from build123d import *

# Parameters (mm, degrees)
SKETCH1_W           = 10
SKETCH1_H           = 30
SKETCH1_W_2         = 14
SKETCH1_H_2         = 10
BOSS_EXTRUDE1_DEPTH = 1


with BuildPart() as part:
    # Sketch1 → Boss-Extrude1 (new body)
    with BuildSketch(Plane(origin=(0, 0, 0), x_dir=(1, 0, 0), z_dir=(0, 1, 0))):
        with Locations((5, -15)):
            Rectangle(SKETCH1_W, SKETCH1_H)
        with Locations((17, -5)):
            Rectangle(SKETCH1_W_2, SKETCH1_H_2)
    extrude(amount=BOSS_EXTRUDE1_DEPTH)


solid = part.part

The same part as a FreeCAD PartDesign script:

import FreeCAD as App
import Part
import Sketcher
from FreeCAD import Vector


def add_polygon(sketch, points):
    """Adds a closed chain of lines whose ends are joined by coincident constraints."""
    first, n = sketch.GeometryCount, len(points)
    for a, b in zip(points, points[1:] + points[:1]):
        sketch.addGeometry(Part.LineSegment(App.Vector(*a, 0), App.Vector(*b, 0)), False)
    for i in range(n):
        sketch.addConstraint(Sketcher.Constraint("Coincident", first + i, 2, first + (i + 1) % n, 1))

doc = App.newDocument("Part")
params = doc.addObject("Spreadsheet::Sheet", "Params")
for row, (alias, value) in enumerate([
    ("sketch1_width", "10 mm"),
    ("sketch1_width2", "14 mm"),
    ("sketch1_height", "30 mm"),
    ("pad1_length", "1 mm"),
], start=1):
    params.set(f"A{row}", alias)
    params.set(f"B{row}", "=" + value)
    params.setAlias(f"B{row}", alias)

body = doc.addObject("PartDesign::Body", "Body")

# Sketch on XZ plane
sketch1 = body.newObject("Sketcher::SketchObject", "Sketch")
sketch1.AttachmentSupport = (doc.getObject("XZ_Plane"), [""])
sketch1.MapMode = "FlatFace"
add_polygon(sketch1, [(0, 0), (0, 30), (10, 30), (10, 10), (24, 10), (24, 0)])  # lines 0-5
sketch1.addConstraint([
    Sketcher.Constraint("Vertical", 0),
    Sketcher.Constraint("Horizontal", 1),
    Sketcher.Constraint("Vertical", 2),
    Sketcher.Constraint("Horizontal", 3),
    Sketcher.Constraint("Vertical", 4),
    Sketcher.Constraint("Horizontal", 5),
    Sketcher.Constraint("Coincident", 5, 2, -1, 1),
    Sketcher.Constraint("Equal", 1, 4),
    Sketcher.Constraint("DistanceX", 1, 1, 1, 2, 10.0),
    Sketcher.Constraint("DistanceX", 3, 1, 3, 2, 14.0),
    Sketcher.Constraint("DistanceY", 0, 1, 0, 2, 30.0),
])
sketch1.setExpression("Constraints[14]", "Params.sketch1_width")
sketch1.setExpression("Constraints[15]", "Params.sketch1_width2")
sketch1.setExpression("Constraints[16]", "Params.sketch1_height")
pad1 = body.newObject("PartDesign::Pad", "Pad")
pad1.Profile = sketch1
pad1.setExpression("Length", "Params.pad1_length")
pad1.Reversed = True

doc.recompute()
